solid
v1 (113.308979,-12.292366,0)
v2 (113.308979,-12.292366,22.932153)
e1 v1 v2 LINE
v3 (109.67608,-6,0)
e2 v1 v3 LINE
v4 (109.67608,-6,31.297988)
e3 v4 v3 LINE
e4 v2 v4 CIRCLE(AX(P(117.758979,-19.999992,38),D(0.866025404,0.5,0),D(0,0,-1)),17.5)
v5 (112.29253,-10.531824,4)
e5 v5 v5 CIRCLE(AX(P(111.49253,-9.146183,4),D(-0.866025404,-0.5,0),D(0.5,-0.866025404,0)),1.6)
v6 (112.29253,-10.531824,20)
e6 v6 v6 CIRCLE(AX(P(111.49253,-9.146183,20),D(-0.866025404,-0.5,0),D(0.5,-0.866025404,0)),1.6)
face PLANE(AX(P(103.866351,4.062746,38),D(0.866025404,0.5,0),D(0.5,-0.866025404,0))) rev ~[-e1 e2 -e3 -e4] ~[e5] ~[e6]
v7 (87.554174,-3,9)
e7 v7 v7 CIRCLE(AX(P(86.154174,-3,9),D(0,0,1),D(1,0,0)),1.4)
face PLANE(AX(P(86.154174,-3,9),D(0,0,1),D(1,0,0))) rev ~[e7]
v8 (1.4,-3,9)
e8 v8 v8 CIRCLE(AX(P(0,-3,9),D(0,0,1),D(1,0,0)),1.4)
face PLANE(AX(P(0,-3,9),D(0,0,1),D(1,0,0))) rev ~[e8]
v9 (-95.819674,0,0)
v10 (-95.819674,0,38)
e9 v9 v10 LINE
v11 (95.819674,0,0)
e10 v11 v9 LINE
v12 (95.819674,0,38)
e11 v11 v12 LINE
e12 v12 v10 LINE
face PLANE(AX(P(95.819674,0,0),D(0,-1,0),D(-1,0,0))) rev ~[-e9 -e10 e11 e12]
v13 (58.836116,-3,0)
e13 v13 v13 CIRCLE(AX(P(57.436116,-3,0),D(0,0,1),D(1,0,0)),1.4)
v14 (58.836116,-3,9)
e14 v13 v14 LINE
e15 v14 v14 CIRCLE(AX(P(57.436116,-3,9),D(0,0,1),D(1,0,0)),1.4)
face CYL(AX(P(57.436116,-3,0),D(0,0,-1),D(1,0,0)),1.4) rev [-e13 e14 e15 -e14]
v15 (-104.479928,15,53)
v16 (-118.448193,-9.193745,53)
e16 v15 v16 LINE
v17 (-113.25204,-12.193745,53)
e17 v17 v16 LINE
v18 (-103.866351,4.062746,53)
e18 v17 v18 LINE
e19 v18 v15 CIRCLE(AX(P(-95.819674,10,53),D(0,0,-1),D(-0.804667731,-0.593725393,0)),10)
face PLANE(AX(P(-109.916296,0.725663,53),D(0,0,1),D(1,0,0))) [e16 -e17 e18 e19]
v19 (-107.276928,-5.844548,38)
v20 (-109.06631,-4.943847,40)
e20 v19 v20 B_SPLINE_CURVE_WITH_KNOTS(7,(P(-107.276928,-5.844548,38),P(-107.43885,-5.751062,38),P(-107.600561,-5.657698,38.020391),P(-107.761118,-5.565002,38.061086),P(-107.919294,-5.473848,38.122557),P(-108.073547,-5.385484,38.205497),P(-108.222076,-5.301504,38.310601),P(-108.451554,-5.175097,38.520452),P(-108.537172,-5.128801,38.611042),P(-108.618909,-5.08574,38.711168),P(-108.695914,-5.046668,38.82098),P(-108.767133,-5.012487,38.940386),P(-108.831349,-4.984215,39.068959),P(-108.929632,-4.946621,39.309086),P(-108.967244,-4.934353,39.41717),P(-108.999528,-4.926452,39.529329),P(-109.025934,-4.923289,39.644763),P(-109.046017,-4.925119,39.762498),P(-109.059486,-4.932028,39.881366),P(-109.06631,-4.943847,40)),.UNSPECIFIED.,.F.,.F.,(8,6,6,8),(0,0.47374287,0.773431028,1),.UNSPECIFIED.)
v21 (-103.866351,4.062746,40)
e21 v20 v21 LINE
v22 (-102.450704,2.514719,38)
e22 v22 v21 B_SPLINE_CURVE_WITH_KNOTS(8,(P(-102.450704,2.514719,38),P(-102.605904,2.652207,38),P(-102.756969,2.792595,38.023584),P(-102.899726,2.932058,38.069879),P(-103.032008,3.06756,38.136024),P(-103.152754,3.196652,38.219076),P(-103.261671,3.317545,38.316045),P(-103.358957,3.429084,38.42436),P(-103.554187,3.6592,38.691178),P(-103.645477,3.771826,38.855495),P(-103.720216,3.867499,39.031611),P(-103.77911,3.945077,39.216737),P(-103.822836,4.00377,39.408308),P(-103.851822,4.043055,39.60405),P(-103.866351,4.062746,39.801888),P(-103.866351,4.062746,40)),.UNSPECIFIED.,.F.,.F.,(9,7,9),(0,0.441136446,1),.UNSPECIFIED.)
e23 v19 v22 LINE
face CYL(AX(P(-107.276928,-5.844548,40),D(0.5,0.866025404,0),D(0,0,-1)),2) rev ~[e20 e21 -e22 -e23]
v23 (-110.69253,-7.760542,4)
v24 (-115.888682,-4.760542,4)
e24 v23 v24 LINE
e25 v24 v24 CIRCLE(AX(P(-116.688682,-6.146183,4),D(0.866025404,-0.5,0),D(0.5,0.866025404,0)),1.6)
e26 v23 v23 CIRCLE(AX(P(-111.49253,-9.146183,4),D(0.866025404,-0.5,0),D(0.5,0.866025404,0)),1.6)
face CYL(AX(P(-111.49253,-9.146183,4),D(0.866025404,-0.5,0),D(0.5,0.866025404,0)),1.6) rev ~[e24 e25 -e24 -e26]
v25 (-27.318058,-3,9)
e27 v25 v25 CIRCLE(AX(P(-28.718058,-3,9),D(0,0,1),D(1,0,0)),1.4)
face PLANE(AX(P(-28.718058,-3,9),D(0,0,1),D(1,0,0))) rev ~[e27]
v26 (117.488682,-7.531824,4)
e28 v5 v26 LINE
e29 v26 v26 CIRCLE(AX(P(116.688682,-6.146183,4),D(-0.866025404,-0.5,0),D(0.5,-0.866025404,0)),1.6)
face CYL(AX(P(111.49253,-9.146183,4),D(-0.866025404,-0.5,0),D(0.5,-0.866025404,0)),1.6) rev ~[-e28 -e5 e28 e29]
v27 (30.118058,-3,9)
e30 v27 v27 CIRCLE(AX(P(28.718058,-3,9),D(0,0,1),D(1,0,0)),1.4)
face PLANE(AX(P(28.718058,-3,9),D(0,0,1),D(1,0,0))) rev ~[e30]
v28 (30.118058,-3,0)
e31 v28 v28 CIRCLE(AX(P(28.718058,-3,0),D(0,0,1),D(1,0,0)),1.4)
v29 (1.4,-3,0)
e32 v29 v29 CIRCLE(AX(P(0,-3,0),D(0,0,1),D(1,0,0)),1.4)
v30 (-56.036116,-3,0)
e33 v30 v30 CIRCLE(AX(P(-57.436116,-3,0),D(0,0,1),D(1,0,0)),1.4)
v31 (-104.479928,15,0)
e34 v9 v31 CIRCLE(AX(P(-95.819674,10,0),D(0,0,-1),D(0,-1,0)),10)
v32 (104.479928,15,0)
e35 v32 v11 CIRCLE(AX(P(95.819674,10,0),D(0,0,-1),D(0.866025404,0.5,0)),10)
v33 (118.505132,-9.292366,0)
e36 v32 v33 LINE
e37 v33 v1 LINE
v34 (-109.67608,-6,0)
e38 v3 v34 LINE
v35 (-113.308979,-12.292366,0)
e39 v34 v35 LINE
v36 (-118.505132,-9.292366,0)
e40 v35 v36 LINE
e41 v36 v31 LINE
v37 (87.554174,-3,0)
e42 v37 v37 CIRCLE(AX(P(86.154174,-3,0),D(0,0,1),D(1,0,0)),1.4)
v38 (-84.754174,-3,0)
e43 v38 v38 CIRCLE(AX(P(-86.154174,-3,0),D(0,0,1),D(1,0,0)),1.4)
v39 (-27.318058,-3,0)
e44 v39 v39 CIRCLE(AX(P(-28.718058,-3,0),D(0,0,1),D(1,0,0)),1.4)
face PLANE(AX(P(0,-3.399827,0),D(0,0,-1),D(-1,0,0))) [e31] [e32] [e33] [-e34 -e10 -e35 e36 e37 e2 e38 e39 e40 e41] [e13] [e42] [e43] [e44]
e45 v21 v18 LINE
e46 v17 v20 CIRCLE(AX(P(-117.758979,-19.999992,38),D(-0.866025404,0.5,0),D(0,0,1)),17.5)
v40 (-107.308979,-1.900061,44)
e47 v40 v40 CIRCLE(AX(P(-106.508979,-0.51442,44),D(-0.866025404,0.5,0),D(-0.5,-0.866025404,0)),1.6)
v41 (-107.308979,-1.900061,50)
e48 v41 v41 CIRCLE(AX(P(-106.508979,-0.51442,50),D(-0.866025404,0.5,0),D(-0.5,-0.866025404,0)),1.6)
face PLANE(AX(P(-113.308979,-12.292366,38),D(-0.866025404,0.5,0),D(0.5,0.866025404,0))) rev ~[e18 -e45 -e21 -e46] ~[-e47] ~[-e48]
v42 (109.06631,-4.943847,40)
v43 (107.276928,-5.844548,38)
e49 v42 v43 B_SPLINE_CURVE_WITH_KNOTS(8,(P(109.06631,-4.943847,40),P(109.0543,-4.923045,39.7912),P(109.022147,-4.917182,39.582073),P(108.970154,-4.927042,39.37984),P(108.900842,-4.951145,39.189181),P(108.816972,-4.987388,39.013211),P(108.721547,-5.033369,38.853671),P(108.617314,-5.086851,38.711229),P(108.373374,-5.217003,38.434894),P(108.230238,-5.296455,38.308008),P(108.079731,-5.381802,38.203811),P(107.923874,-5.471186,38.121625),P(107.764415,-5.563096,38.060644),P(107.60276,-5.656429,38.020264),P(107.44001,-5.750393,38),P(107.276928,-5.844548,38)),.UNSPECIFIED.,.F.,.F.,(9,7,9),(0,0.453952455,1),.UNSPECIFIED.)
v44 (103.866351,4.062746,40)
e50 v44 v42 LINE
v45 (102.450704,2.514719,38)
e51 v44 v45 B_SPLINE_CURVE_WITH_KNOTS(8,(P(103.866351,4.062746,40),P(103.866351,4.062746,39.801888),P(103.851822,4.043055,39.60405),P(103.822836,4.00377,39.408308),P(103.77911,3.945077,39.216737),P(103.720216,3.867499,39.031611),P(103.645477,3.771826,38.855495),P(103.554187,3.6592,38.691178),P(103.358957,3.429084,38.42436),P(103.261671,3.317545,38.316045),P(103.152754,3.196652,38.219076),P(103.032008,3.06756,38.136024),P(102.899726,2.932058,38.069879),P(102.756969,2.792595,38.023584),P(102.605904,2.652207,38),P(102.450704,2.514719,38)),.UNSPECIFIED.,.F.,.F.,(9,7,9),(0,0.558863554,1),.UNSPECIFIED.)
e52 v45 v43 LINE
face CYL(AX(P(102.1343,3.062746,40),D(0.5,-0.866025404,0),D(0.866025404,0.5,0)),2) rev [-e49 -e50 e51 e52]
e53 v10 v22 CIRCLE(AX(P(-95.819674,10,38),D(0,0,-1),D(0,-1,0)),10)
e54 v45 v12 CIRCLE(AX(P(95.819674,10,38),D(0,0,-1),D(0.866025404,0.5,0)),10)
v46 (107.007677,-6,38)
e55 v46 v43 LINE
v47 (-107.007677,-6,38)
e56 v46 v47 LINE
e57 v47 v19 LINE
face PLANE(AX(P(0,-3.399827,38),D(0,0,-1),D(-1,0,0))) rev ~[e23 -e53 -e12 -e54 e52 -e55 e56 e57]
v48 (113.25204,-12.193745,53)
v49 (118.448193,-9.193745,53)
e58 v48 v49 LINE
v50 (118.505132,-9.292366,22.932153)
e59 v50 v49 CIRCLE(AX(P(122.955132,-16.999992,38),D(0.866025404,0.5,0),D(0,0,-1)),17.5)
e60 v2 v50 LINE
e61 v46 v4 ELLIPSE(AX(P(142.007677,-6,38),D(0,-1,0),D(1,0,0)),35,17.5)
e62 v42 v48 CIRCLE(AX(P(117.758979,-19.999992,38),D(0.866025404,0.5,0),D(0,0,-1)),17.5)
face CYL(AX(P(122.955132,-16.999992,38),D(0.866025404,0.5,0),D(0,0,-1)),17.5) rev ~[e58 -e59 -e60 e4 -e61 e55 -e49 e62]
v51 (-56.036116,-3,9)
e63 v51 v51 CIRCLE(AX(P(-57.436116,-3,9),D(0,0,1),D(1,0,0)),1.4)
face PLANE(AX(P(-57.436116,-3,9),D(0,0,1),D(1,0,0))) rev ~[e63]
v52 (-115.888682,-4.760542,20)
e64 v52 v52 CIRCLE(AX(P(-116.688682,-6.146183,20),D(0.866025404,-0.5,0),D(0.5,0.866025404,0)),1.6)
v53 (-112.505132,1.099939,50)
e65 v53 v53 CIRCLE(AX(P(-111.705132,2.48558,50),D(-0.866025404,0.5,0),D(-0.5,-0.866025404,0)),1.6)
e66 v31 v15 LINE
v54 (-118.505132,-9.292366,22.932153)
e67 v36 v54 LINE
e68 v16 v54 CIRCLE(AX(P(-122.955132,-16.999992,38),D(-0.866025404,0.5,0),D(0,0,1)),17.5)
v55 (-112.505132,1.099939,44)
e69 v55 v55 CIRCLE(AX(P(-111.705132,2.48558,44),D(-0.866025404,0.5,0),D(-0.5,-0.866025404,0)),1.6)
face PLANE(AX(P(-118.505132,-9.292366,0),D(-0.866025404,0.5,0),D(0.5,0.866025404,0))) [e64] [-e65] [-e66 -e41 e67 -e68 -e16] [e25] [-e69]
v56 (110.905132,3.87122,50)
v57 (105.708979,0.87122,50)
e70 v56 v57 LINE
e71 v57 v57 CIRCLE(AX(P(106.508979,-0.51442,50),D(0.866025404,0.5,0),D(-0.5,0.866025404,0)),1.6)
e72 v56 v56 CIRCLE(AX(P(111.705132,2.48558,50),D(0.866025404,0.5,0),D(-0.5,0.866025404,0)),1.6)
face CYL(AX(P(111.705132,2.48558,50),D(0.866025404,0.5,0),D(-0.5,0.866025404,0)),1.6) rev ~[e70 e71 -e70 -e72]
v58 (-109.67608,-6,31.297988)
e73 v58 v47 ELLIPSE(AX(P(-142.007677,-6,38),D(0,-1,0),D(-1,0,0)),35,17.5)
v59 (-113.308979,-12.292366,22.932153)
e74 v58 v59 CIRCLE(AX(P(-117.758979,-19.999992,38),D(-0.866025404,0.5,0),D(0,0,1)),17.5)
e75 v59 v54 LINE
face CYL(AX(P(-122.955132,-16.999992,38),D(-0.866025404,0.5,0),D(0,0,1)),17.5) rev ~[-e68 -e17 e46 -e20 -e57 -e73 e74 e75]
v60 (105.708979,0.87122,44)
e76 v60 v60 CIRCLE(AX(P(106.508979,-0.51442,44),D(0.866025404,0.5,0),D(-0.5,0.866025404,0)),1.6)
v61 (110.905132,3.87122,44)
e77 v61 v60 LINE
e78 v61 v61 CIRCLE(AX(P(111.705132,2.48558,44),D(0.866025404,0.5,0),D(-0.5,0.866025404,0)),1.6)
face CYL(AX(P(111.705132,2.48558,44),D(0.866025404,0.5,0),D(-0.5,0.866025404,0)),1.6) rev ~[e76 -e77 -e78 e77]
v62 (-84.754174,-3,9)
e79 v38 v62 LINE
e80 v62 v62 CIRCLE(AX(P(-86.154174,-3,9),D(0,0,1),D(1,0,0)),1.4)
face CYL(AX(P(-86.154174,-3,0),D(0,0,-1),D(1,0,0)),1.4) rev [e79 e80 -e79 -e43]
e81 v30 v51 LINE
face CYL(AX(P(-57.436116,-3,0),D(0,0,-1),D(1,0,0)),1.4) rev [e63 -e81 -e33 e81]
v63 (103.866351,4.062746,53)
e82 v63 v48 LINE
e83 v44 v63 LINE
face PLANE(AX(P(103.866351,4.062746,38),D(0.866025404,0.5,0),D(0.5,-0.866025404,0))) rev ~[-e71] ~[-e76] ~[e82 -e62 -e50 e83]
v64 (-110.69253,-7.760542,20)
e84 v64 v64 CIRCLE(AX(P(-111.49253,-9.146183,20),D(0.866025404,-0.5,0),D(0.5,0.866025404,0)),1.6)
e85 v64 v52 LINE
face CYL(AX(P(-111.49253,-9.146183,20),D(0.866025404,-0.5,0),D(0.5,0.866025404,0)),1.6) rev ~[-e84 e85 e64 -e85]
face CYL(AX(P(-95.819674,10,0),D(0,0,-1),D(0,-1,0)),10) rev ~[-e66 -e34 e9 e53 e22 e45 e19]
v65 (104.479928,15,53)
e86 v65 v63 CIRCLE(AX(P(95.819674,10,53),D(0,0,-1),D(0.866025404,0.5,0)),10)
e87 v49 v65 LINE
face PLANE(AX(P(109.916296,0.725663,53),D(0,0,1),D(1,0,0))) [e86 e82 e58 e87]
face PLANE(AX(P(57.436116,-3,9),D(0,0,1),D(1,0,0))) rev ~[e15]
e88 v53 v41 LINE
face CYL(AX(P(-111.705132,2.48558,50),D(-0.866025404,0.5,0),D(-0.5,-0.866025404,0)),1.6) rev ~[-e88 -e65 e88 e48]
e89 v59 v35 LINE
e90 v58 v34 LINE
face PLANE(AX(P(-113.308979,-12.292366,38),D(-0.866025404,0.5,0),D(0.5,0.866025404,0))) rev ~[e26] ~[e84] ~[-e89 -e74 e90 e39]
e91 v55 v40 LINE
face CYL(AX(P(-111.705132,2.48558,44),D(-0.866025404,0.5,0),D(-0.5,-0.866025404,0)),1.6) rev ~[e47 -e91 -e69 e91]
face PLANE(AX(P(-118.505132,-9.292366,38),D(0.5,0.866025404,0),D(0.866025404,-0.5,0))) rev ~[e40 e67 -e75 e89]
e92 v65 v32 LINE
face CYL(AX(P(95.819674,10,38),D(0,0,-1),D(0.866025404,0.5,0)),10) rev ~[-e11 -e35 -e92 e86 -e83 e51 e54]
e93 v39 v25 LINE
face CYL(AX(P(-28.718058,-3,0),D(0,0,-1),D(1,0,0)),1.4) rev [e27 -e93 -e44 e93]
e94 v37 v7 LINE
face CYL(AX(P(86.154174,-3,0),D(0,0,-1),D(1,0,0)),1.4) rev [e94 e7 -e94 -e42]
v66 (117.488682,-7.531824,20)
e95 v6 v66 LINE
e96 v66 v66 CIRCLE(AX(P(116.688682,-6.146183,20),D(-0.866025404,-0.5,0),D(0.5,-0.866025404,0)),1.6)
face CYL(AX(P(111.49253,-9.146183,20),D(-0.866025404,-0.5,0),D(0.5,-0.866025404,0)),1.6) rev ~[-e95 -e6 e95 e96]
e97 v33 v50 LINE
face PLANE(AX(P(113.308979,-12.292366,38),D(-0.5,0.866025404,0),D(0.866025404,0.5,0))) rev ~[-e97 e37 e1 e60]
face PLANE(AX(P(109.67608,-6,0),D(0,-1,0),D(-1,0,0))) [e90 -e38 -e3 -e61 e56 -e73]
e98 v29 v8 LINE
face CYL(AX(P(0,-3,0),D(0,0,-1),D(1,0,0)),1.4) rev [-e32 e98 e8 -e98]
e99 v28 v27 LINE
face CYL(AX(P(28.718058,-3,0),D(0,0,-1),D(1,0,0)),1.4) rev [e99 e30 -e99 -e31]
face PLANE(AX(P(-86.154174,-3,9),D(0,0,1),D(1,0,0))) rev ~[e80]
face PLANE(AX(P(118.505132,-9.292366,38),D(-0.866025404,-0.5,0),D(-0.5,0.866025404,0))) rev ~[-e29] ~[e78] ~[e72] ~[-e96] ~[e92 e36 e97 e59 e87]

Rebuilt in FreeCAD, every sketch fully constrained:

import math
import FreeCAD as App
import Part
import Sketcher
from FreeCAD import Vector
Q = App.Units.Quantity


def edges_at(feature, points):
    """Names of the edges that pass closest to the given points."""
    edges = feature.Shape.Edges
    near = lambda p: min(range(len(edges)), key=lambda i: edges[i].distToShape(Part.Vertex(*p))[0])
    return sorted({f"Edge{near(p) + 1}" for p in points})


def add_polygon(sketch, points):
    """Adds a closed chain of lines whose ends are joined by coincident constraints."""
    first, n = sketch.GeometryCount, len(points)
    for a, b in zip(points, points[1:] + points[:1]):
        sketch.addGeometry(Part.LineSegment(App.Vector(*a, 0), App.Vector(*b, 0)), False)
    for i in range(n):
        sketch.addConstraint(Sketcher.Constraint("Coincident", first + i, 2, first + (i + 1) % n, 1))

doc = App.newDocument("Part")
params = doc.addObject("Spreadsheet::Sheet", "Params")
for row, (alias, value) in enumerate([
    ("sketch1_length", "6 mm"),
    ("pad1_length", "2 mm"),
    ("sketch2_length", "6 mm"),
    ("pad2_length", "38 mm"),
    ("sketch3_radius", "10 mm"),
    ("sketch3_length", "6 mm"),
    ("pad3_length", "38 mm"),
    ("sketch4_diameter", "2.8 mm"),
    ("pocket1_length", "9 mm"),
    ("sketch5_diameter", "3.2 mm"),
    ("sketch6_diameter", "3.2 mm"),
    ("sketch7_diameter", "3.2 mm"),
    ("sketch8_diameter", "3.2 mm"),
    ("sketch9_radius", "10 mm"),
    ("sketch9_length", "6 mm"),
    ("pad4_length", "15 mm"),
    ("sketch10_diameter", "35 mm"),
    ("pocket6_length", "8.310905 mm"),
    ("sketch11_diameter", "3.2 mm"),
    ("sketch12_diameter", "3.2 mm"),
    ("sketch13_diameter", "35 mm"),
    ("pocket9_length", "8.310905 mm"),
    ("sketch14_diameter", "3.2 mm"),
    ("sketch15_diameter", "3.2 mm"),
    ("fillet_radius", "2 mm"),
], start=1):
    params.set(f"A{row}", alias)
    params.set(f"B{row}", "=" + value)
    params.setAlias(f"B{row}", alias)

body = doc.addObject("PartDesign::Body", "Body")

sketch1 = body.newObject("Sketcher::SketchObject", "Sketch")
sketch1.AttachmentSupport = (doc.getObject("XY_Plane"), [""])
sketch1.MapMode = "FlatFace"
add_polygon(sketch1, [(113.140182, 0), (-113.140182, 0), (-118.505132, -9.292366), (-113.308979, -12.292366), (-109.67608, -6), (109.67608, -6), (113.308979, -12.292366), (118.505132, -9.292366)])
sketch1.addConstraint(Sketcher.Constraint("Horizontal", 0))
sketch1.addConstraint(Sketcher.Constraint("Horizontal", 4))
sketch1.addConstraint(Sketcher.Constraint("Symmetric", 0, 2, 7, 2, -1, 1))
sketch1.addConstraint(Sketcher.Constraint("Symmetric", 2, 2, 5, 2, -2))
sketch1.addConstraint(Sketcher.Constraint("Symmetric", 1, 2, 6, 2, -2))
sketch1.addConstraint(Sketcher.Constraint("Perpendicular", 1, 2))
sketch1.addConstraint(Sketcher.Constraint("Perpendicular", 2, 3))
sketch1.addConstraint(Sketcher.Constraint("Perpendicular", 5, 6))
sketch1.addConstraint(Sketcher.Constraint("Angle", 1, Q("-120 deg")))
sketch1.addConstraint(Sketcher.Constraint("Distance", 2, 6.0))
sketch1.addConstraint(Sketcher.Constraint("DistanceY", 3, 2, -1, 1, 6.0))
sketch1.addConstraint(Sketcher.Constraint("Distance", 1, 10.7299))
sketch1.addConstraint(Sketcher.Constraint("DistanceX", 4, 1, 4, 2, 219.35216))
sketch1.setExpression("Constraints[17]", "Params.sketch1_length")
pad1 = body.newObject("PartDesign::Pad", "Pad")
pad1.Profile = sketch1
pad1.setExpression("Length", "Params.pad1_length")

sketch2 = body.newObject("Sketcher::SketchObject", "Sketch001")
sketch2.AttachmentSupport = (doc.getObject("XY_Plane"), [""])
sketch2.MapMode = "FlatFace"
add_polygon(sketch2, [(113.140182, 0), (-113.140182, 0), (-118.505132, -9.292366), (-113.308979, -12.292366), (-109.67608, -6), (109.67608, -6), (113.308979, -12.292366), (118.505132, -9.292366)])
sketch2.addConstraint(Sketcher.Constraint("Horizontal", 0))
sketch2.addConstraint(Sketcher.Constraint("Horizontal", 4))
sketch2.addConstraint(Sketcher.Constraint("Symmetric", 0, 2, 7, 2, -1, 1))
sketch2.addConstraint(Sketcher.Constraint("Symmetric", 2, 2, 5, 2, -2))
sketch2.addConstraint(Sketcher.Constraint("Symmetric", 1, 2, 6, 2, -2))
sketch2.addConstraint(Sketcher.Constraint("Perpendicular", 1, 2))
sketch2.addConstraint(Sketcher.Constraint("Perpendicular", 2, 3))
sketch2.addConstraint(Sketcher.Constraint("Perpendicular", 5, 6))
sketch2.addConstraint(Sketcher.Constraint("Angle", 1, Q("-120 deg")))
sketch2.addConstraint(Sketcher.Constraint("Distance", 2, 6.0))
sketch2.addConstraint(Sketcher.Constraint("DistanceY", 3, 2, -1, 1, 6.0))
sketch2.addConstraint(Sketcher.Constraint("Distance", 1, 10.7299))
sketch2.addConstraint(Sketcher.Constraint("DistanceX", 4, 1, 4, 2, 219.35216))
sketch2.setExpression("Constraints[17]", "Params.sketch2_length")
pad2 = body.newObject("PartDesign::Pad", "Pad001")
pad2.Profile = sketch2
pad2.setExpression("Length", "Params.pad2_length")

sketch3 = body.newObject("Sketcher::SketchObject", "Sketch002")
sketch3.AttachmentSupport = (doc.getObject("XY_Plane"), [""])
sketch3.MapMode = "FlatFace"
sketch3.addGeometry(Part.LineSegment(Vector(104.479928, 15, 0), Vector(114.872233, -3, 0)), False)
sketch3.addGeometry(Part.LineSegment(Vector(114.872233, -3, 0), Vector(109.67608, -6, 0)), False)
sketch3.addGeometry(Part.LineSegment(Vector(109.67608, -6, 0), Vector(-109.67608, -6, 0)), False)
sketch3.addGeometry(Part.LineSegment(Vector(-109.67608, -6, 0), Vector(-114.872233, -3, 0)), False)
sketch3.addGeometry(Part.LineSegment(Vector(-114.872233, -3, 0), Vector(-104.479928, 15, 0)), False)
sketch3.addGeometry(Part.ArcOfCircle(Part.Circle(Vector(-95.819674, 10, 0), Vector(0, 0, 1), 10), math.radians(150), math.radians(270)), False)
sketch3.addGeometry(Part.LineSegment(Vector(-95.819674, 0, 0), Vector(95.819674, 0, 0)), False)
sketch3.addGeometry(Part.ArcOfCircle(Part.Circle(Vector(95.819674, 10, 0), Vector(0, 0, 1), 10), math.radians(-90), math.radians(30)), False)
sketch3.addConstraint(Sketcher.Constraint("Coincident", 0, 2, 1, 1))
sketch3.addConstraint(Sketcher.Constraint("Coincident", 1, 2, 2, 1))
sketch3.addConstraint(Sketcher.Constraint("Coincident", 2, 2, 3, 1))
sketch3.addConstraint(Sketcher.Constraint("Coincident", 3, 2, 4, 1))
sketch3.addConstraint(Sketcher.Constraint("Tangent", 4, 2, 5, 1))
sketch3.addConstraint(Sketcher.Constraint("Tangent", 5, 2, 6, 1))
sketch3.addConstraint(Sketcher.Constraint("Tangent", 6, 2, 7, 1))
sketch3.addConstraint(Sketcher.Constraint("Tangent", 7, 2, 0, 1))
sketch3.addConstraint(Sketcher.Constraint("Horizontal", 2))
sketch3.addConstraint(Sketcher.Constraint("Horizontal", 6))
sketch3.addConstraint(Sketcher.Constraint("Equal", 5, 7))
sketch3.addConstraint(Sketcher.Constraint("Symmetric", 5, 2, 6, 2, -1, 1))
sketch3.addConstraint(Sketcher.Constraint("Symmetric", 0, 2, 3, 2, -2))
sketch3.addConstraint(Sketcher.Constraint("Perpendicular", 0, 1))
sketch3.addConstraint(Sketcher.Constraint("Perpendicular", 3, 4))
sketch3.addConstraint(Sketcher.Constraint("Radius", 5, 10.0))
sketch3.addConstraint(Sketcher.Constraint("Angle", 0, Q("-60 deg")))
sketch3.addConstraint(Sketcher.Constraint("Distance", 1, 6.0))
sketch3.addConstraint(Sketcher.Constraint("DistanceY", 0, 2, -1, 1, 3.0))
sketch3.addConstraint(Sketcher.Constraint("DistanceX", 2, 2, 2, 1, 219.35216))
sketch3.setExpression("Constraints[15]", "Params.sketch3_radius")
sketch3.setExpression("Constraints[17]", "Params.sketch3_length")
pad3 = body.newObject("PartDesign::Pad", "Pad002")
pad3.Profile = sketch3
pad3.setExpression("Length", "Params.pad3_length")

sketch4 = body.newObject("Sketcher::SketchObject", "Sketch003")
sketch4.AttachmentSupport = (doc.getObject("XY_Plane"), [""])
sketch4.MapMode = "FlatFace"
sketch4.addGeometry(Part.Circle(Vector(57.436116, -3, 0), Vector(0, 0, 1), 1.4), False)
sketch4.addGeometry(Part.Circle(Vector(0, -3, 0), Vector(0, 0, 1), 1.4), False)
sketch4.addGeometry(Part.Circle(Vector(-57.436116, -3, 0), Vector(0, 0, 1), 1.4), False)
sketch4.addGeometry(Part.Circle(Vector(-28.718058, -3, 0), Vector(0, 0, 1), 1.4), False)
sketch4.addGeometry(Part.Circle(Vector(28.718058, -3, 0), Vector(0, 0, 1), 1.4), False)
sketch4.addGeometry(Part.Circle(Vector(-86.154174, -3, 0), Vector(0, 0, 1), 1.4), False)
sketch4.addGeometry(Part.Circle(Vector(86.154174, -3, 0), Vector(0, 0, 1), 1.4), False)
sketch4.addConstraint(Sketcher.Constraint("Equal", 0, 1))
sketch4.addConstraint(Sketcher.Constraint("Equal", 1, 2))
sketch4.addConstraint(Sketcher.Constraint("Equal", 2, 3))
sketch4.addConstraint(Sketcher.Constraint("Equal", 3, 4))
sketch4.addConstraint(Sketcher.Constraint("Equal", 4, 5))
sketch4.addConstraint(Sketcher.Constraint("Equal", 5, 6))
sketch4.addConstraint(Sketcher.Constraint("Symmetric", 0, 3, 2, 3, -2))
sketch4.addConstraint(Sketcher.Constraint("Symmetric", 3, 3, 4, 3, -2))
sketch4.addConstraint(Sketcher.Constraint("Symmetric", 5, 3, 6, 3, -2))
sketch4.addConstraint(Sketcher.Constraint("PointOnObject", 1, 3, -2))
sketch4.addConstraint(Sketcher.Constraint("Horizontal", 0, 3, 1, 3))
sketch4.addConstraint(Sketcher.Constraint("Horizontal", 2, 3, 3, 3))
sketch4.addConstraint(Sketcher.Constraint("Horizontal", 4, 3, 5, 3))
sketch4.addConstraint(Sketcher.Constraint("Diameter", 0, 2.8))
sketch4.addConstraint(Sketcher.Constraint("DistanceY", 0, 3, -1, 1, 3.0))
sketch4.addConstraint(Sketcher.Constraint("DistanceX", 3, 3, -1, 1, 28.718058))
sketch4.addConstraint(Sketcher.Constraint("DistanceX", 2, 3, 3, 3, 28.718058))
sketch4.addConstraint(Sketcher.Constraint("DistanceX", 5, 3, 2, 3, 28.718058))
sketch4.setExpression("Constraints[13]", "Params.sketch4_diameter")
pocket1 = body.newObject("PartDesign::Pocket", "Pocket")
pocket1.Profile = sketch4
pocket1.setExpression("Length", "Params.pocket1_length")
pocket1.Reversed = True

sketch5 = body.newObject("Sketcher::SketchObject", "Sketch004")
sketch5.Placement = App.Placement(Vector(-79.658984, 45.991136, 0), App.Rotation(Vector(0, 0, -1), Vector(0.5, 0.866025404, 0), Vector(0.866025404, -0.5, 0), "ZXY"))
sketch5.addGeometry(Part.Circle(Vector(-20, -63.667092, 0), Vector(0, 0, 1), 1.6), False)
sketch5.addConstraint(Sketcher.Constraint("Diameter", 0, 3.2))
sketch5.addConstraint(Sketcher.Constraint("DistanceX", 0, 3, -1, 1, 20.0))
sketch5.addConstraint(Sketcher.Constraint("DistanceY", 0, 3, -1, 1, 63.667092))
sketch5.setExpression("Constraints[0]", "Params.sketch5_diameter")
pocket2 = body.newObject("PartDesign::Pocket", "Pocket001")
pocket2.Profile = sketch5
pocket2.Type = "UpToFirst"

sketch6 = body.newObject("Sketcher::SketchObject", "Sketch005")
sketch6.Placement = App.Placement(Vector(-79.658984, 45.991136, 0), App.Rotation(Vector(0, 0, -1), Vector(0.5, 0.866025404, 0), Vector(0.866025404, -0.5, 0), "ZXY"))
sketch6.addGeometry(Part.Circle(Vector(-4, -63.667092, 0), Vector(0, 0, 1), 1.6), False)
sketch6.addConstraint(Sketcher.Constraint("Diameter", 0, 3.2))
sketch6.addConstraint(Sketcher.Constraint("DistanceX", 0, 3, -1, 1, 4.0))
sketch6.addConstraint(Sketcher.Constraint("DistanceY", 0, 3, -1, 1, 63.667092))
sketch6.setExpression("Constraints[0]", "Params.sketch6_diameter")
pocket3 = body.newObject("PartDesign::Pocket", "Pocket002")
pocket3.Profile = sketch6
pocket3.Type = "UpToFirst"

sketch7 = body.newObject("Sketcher::SketchObject", "Sketch006")
sketch7.Placement = App.Placement(Vector(79.658984, 45.991136, 0), App.Rotation(Vector(0, 0, 1), Vector(-0.5, 0.866025404, 0), Vector(-0.866025404, -0.5, 0), "ZXY"))
sketch7.addGeometry(Part.Circle(Vector(20, -63.667092, 0), Vector(0, 0, 1), 1.6), False)
sketch7.addConstraint(Sketcher.Constraint("Diameter", 0, 3.2))
sketch7.addConstraint(Sketcher.Constraint("DistanceX", -1, 1, 0, 3, 20.0))
sketch7.addConstraint(Sketcher.Constraint("DistanceY", 0, 3, -1, 1, 63.667092))
sketch7.setExpression("Constraints[0]", "Params.sketch7_diameter")
pocket4 = body.newObject("PartDesign::Pocket", "Pocket003")
pocket4.Profile = sketch7
pocket4.Type = "UpToFirst"

sketch8 = body.newObject("Sketcher::SketchObject", "Sketch007")
sketch8.Placement = App.Placement(Vector(79.658984, 45.991136, 0), App.Rotation(Vector(0, 0, 1), Vector(-0.5, 0.866025404, 0), Vector(-0.866025404, -0.5, 0), "ZXY"))
sketch8.addGeometry(Part.Circle(Vector(4, -63.667092, 0), Vector(0, 0, 1), 1.6), False)
sketch8.addConstraint(Sketcher.Constraint("Diameter", 0, 3.2))
sketch8.addConstraint(Sketcher.Constraint("DistanceX", -1, 1, 0, 3, 4.0))
sketch8.addConstraint(Sketcher.Constraint("DistanceY", 0, 3, -1, 1, 63.667092))
sketch8.setExpression("Constraints[0]", "Params.sketch8_diameter")
pocket5 = body.newObject("PartDesign::Pocket", "Pocket004")
pocket5.Profile = sketch8
pocket5.Type = "UpToFirst"

sketch9 = body.newObject("Sketcher::SketchObject", "Sketch008")
sketch9.AttachmentSupport = (doc.getObject("XY_Plane"), [""])
sketch9.MapMode = "FlatFace"
sketch9.AttachmentOffset = App.Placement(Vector(0, 0, 38), App.Rotation())
sketch9.addGeometry(Part.LineSegment(Vector(103.866351, 4.062746, 0), Vector(113.308979, -12.292366, 0)), False)
sketch9.addGeometry(Part.LineSegment(Vector(113.308979, -12.292366, 0), Vector(118.505132, -9.292366, 0)), False)
sketch9.addGeometry(Part.LineSegment(Vector(118.505132, -9.292366, 0), Vector(104.479928, 15, 0)), False)
sketch9.addGeometry(Part.ArcOfCircle(Part.Circle(Vector(95.819674, 10, 0), Vector(0, 0, 1), 10), math.radians(-36.421822), math.radians(30)), False)
sketch9.addGeometry(Part.LineSegment(Vector(-104.479928, 15, 0), Vector(-118.505132, -9.292366, 0)), False)
sketch9.addGeometry(Part.LineSegment(Vector(-118.505132, -9.292366, 0), Vector(-113.308979, -12.292366, 0)), False)
sketch9.addGeometry(Part.LineSegment(Vector(-113.308979, -12.292366, 0), Vector(-103.866351, 4.062746, 0)), False)
sketch9.addGeometry(Part.ArcOfCircle(Part.Circle(Vector(-95.819674, 10, 0), Vector(0, 0, 1), 10), math.radians(150), math.radians(216.421822)), False)
sketch9.addConstraint(Sketcher.Constraint("Coincident", 0, 2, 1, 1))
sketch9.addConstraint(Sketcher.Constraint("Coincident", 1, 2, 2, 1))
sketch9.addConstraint(Sketcher.Constraint("Tangent", 2, 2, 3, 2))
sketch9.addConstraint(Sketcher.Constraint("Coincident", 3, 1, 0, 1))
sketch9.addConstraint(Sketcher.Constraint("Coincident", 4, 2, 5, 1))
sketch9.addConstraint(Sketcher.Constraint("Coincident", 5, 2, 6, 1))
sketch9.addConstraint(Sketcher.Constraint("Coincident", 6, 2, 7, 2))
sketch9.addConstraint(Sketcher.Constraint("Tangent", 7, 1, 4, 1))
sketch9.addConstraint(Sketcher.Constraint("Equal", 3, 7))
sketch9.addConstraint(Sketcher.Constraint("Symmetric", 3, 3, 7, 3, -2))
sketch9.addConstraint(Sketcher.Constraint("Symmetric", 1, 2, 4, 2, -2))
sketch9.addConstraint(Sketcher.Constraint("Symmetric", 0, 2, 5, 2, -2))
sketch9.addConstraint(Sketcher.Constraint("Perpendicular", 0, 1))
sketch9.addConstraint(Sketcher.Constraint("Perpendicular", 1, 2))
sketch9.addConstraint(Sketcher.Constraint("Perpendicular", 5, 6))
sketch9.addConstraint(Sketcher.Constraint("Radius", 3, 10.0))
sketch9.addConstraint(Sketcher.Constraint("Angle", 0, Q("-60 deg")))
sketch9.addConstraint(Sketcher.Constraint("Distance", 1, 6.0))
sketch9.addConstraint(Sketcher.Constraint("DistanceY", -1, 1, 3, 3, 10.0))
sketch9.addConstraint(Sketcher.Constraint("DistanceX", 7, 3, 2, 2, 200.299601))
sketch9.addConstraint(Sketcher.Constraint("Distance", 2, 28.050408))
sketch9.setExpression("Constraints[15]", "Params.sketch9_radius")
sketch9.setExpression("Constraints[17]", "Params.sketch9_length")
pad4 = body.newObject("PartDesign::Pad", "Pad003")
pad4.Profile = sketch9
pad4.setExpression("Length", "Params.pad4_length")

sketch10 = body.newObject("Sketcher::SketchObject", "Sketch009")
sketch10.Placement = App.Placement(Vector(84.855136, 48.991136, 0), App.Rotation(Vector(0, 0, -1), Vector(-0.5, 0.866025404, 0), Vector(0.866025404, 0.5, 0), "ZXY"))
sketch10.addGeometry(Part.Circle(Vector(-38, -76.199991, 0), Vector(0, 0, 1), 17.5), False)
sketch10.addConstraint(Sketcher.Constraint("Diameter", 0, 35.0))
sketch10.addConstraint(Sketcher.Constraint("DistanceX", 0, 3, -1, 1, 38.0))
sketch10.addConstraint(Sketcher.Constraint("DistanceY", 0, 3, -1, 1, 76.199991))
sketch10.setExpression("Constraints[0]", "Params.sketch10_diameter")
pocket6 = body.newObject("PartDesign::Pocket", "Pocket005")
pocket6.Profile = sketch10
pocket6.setExpression("Length", "Params.pocket6_length")

sketch11 = body.newObject("Sketcher::SketchObject", "Sketch010")
sketch11.Placement = App.Placement(Vector(84.855136, 48.991136, 0), App.Rotation(Vector(0, 0, -1), Vector(-0.5, 0.866025404, 0), Vector(0.866025404, 0.5, 0), "ZXY"))
sketch11.addGeometry(Part.Circle(Vector(-44, -53.699991, 0), Vector(0, 0, 1), 1.6), False)
sketch11.addConstraint(Sketcher.Constraint("Diameter", 0, 3.2))
sketch11.addConstraint(Sketcher.Constraint("DistanceX", 0, 3, -1, 1, 44.0))
sketch11.addConstraint(Sketcher.Constraint("DistanceY", 0, 3, -1, 1, 53.699991))
sketch11.setExpression("Constraints[0]", "Params.sketch11_diameter")
pocket7 = body.newObject("PartDesign::Pocket", "Pocket006")
pocket7.Profile = sketch11
pocket7.Type = "UpToFirst"

sketch12 = body.newObject("Sketcher::SketchObject", "Sketch011")
sketch12.Placement = App.Placement(Vector(84.855136, 48.991136, 0), App.Rotation(Vector(0, 0, -1), Vector(-0.5, 0.866025404, 0), Vector(0.866025404, 0.5, 0), "ZXY"))
sketch12.addGeometry(Part.Circle(Vector(-50, -53.699991, 0), Vector(0, 0, 1), 1.6), False)
sketch12.addConstraint(Sketcher.Constraint("Diameter", 0, 3.2))
sketch12.addConstraint(Sketcher.Constraint("DistanceX", 0, 3, -1, 1, 50.0))
sketch12.addConstraint(Sketcher.Constraint("DistanceY", 0, 3, -1, 1, 53.699991))
sketch12.setExpression("Constraints[0]", "Params.sketch12_diameter")
pocket8 = body.newObject("PartDesign::Pocket", "Pocket007")
pocket8.Profile = sketch12
pocket8.Type = "UpToFirst"

sketch13 = body.newObject("Sketcher::SketchObject", "Sketch012")
sketch13.Placement = App.Placement(Vector(-84.855136, 48.991136, 0), App.Rotation(Vector(0, 0, 1), Vector(0.5, 0.866025404, 0), Vector(-0.866025404, 0.5, 0), "ZXY"))
sketch13.addGeometry(Part.Circle(Vector(38, -76.199991, 0), Vector(0, 0, 1), 17.5), False)
sketch13.addConstraint(Sketcher.Constraint("Diameter", 0, 35.0))
sketch13.addConstraint(Sketcher.Constraint("DistanceX", -1, 1, 0, 3, 38.0))
sketch13.addConstraint(Sketcher.Constraint("DistanceY", 0, 3, -1, 1, 76.199991))
sketch13.setExpression("Constraints[0]", "Params.sketch13_diameter")
pocket9 = body.newObject("PartDesign::Pocket", "Pocket008")
pocket9.Profile = sketch13
pocket9.setExpression("Length", "Params.pocket9_length")

sketch14 = body.newObject("Sketcher::SketchObject", "Sketch013")
sketch14.Placement = App.Placement(Vector(-84.855136, 48.991136, 0), App.Rotation(Vector(0, 0, 1), Vector(0.5, 0.866025404, 0), Vector(-0.866025404, 0.5, 0), "ZXY"))
sketch14.addGeometry(Part.Circle(Vector(50, -53.699991, 0), Vector(0, 0, 1), 1.6), False)
sketch14.addConstraint(Sketcher.Constraint("Diameter", 0, 3.2))
sketch14.addConstraint(Sketcher.Constraint("DistanceX", -1, 1, 0, 3, 50.0))
sketch14.addConstraint(Sketcher.Constraint("DistanceY", 0, 3, -1, 1, 53.699991))
sketch14.setExpression("Constraints[0]", "Params.sketch14_diameter")
pocket10 = body.newObject("PartDesign::Pocket", "Pocket009")
pocket10.Profile = sketch14
pocket10.Type = "UpToFirst"

sketch15 = body.newObject("Sketcher::SketchObject", "Sketch014")
sketch15.Placement = App.Placement(Vector(-84.855136, 48.991136, 0), App.Rotation(Vector(0, 0, 1), Vector(0.5, 0.866025404, 0), Vector(-0.866025404, 0.5, 0), "ZXY"))
sketch15.addGeometry(Part.Circle(Vector(44, -53.699991, 0), Vector(0, 0, 1), 1.6), False)
sketch15.addConstraint(Sketcher.Constraint("Diameter", 0, 3.2))
sketch15.addConstraint(Sketcher.Constraint("DistanceX", -1, 1, 0, 3, 44.0))
sketch15.addConstraint(Sketcher.Constraint("DistanceY", 0, 3, -1, 1, 53.699991))
sketch15.setExpression("Constraints[0]", "Params.sketch15_diameter")
pocket11 = body.newObject("PartDesign::Pocket", "Pocket010")
pocket11.Profile = sketch15
pocket11.Type = "UpToFirst"
doc.recompute()

fillet = body.newObject("PartDesign::Fillet", "Fillet")
fillet.Base = (pocket11, edges_at(pocket11, [(106.438, -0.391, 38), (-106.438, -0.391, 38)]))
fillet.setExpression("Radius", "Params.fillet_radius")

doc.recompute()
